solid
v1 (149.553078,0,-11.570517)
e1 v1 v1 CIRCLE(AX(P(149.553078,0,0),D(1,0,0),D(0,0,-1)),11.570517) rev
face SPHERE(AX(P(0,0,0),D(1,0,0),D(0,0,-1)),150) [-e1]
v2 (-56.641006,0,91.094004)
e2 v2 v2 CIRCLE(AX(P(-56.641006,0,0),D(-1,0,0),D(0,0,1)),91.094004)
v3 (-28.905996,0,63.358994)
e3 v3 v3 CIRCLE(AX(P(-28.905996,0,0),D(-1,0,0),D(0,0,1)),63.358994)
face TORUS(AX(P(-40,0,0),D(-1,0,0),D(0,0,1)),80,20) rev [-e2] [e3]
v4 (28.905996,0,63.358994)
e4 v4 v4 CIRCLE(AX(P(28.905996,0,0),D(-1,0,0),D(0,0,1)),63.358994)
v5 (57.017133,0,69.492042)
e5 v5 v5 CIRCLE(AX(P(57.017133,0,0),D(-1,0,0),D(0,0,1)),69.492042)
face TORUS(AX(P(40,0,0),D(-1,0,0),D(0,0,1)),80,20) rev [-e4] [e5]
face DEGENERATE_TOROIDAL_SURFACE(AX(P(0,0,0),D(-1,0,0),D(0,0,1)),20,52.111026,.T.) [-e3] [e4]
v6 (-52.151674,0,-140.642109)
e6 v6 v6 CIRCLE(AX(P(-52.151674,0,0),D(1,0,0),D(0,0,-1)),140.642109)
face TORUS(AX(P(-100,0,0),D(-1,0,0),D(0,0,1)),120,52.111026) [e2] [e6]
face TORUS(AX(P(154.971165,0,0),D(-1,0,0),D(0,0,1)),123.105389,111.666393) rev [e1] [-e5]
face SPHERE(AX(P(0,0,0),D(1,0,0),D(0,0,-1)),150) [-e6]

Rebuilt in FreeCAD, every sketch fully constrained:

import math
import FreeCAD as App
import Part
import Sketcher

V = App.Vector

doc = App.newDocument("Part")
body = doc.addObject("PartDesign::Body", "Body")

sketch1 = body.newObject("Sketcher::SketchObject", "Sketch")
sketch1.AttachmentSupport = (doc.getObject("XY_Plane"), [""])
sketch1.MapMode = "FlatFace"
sketch1.addGeometry([
    Part.LineSegment(V(0, 150, 0), V(0, -150, 0)),
    Part.ArcOfCircle(Part.Circle(V(0, 0, 0), V(0, 0, 1), 150), math.radians(-90), math.radians(90)),
], False)
sketch1.addConstraint([
    Sketcher.Constraint("Coincident", 0, 1, 1, 2),
    Sketcher.Constraint("Coincident", 1, 1, 0, 2),
    Sketcher.Constraint("Vertical", 0),
    Sketcher.Constraint("Coincident", 1, 3, -1, 1),
    Sketcher.Constraint("PointOnObject", 0, 1, -2),
    Sketcher.Constraint("Radius", 1, 150.0),
])
revolution = body.newObject("PartDesign::Revolution", "Revolution")
revolution.Profile = sketch1
revolution.ReferenceAxis = (sketch1, ["V_Axis"])
revolution.Angle = 360

sketch2 = body.newObject("Sketcher::SketchObject", "Sketch001")
sketch2.AttachmentSupport = (doc.getObject("XY_Plane"), [""])
sketch2.MapMode = "FlatFace"
sketch2.addGeometry([
    Part.ArcOfCircle(Part.Circle(V(100, 120, 0), V(0, 0, 1), 52.111026), math.radians(146.309932), math.radians(213.690068)),
    Part.ArcOfCircle(Part.Circle(V(40, 160, 0), V(0, 0, 1), 20), math.radians(-33.690068), math.radians(123.690068)),
    Part.ArcOfCircle(Part.Circle(V(0, 220, 0), V(0, 0, 1), 52.111026), math.radians(-123.690068), math.radians(-56.309932)),
    Part.ArcOfCircle(Part.Circle(V(-40, 160, 0), V(0, 0, 1), 20), math.radians(56.309932), math.radians(213.690068)),
    Part.ArcOfCircle(Part.Circle(V(-100, 120, 0), V(0, 0, 1), 52.111026), math.radians(-33.690068), math.radians(33.690068)),
    Part.ArcOfCircle(Part.Circle(V(-40, 80, 0), V(0, 0, 1), 20), math.radians(146.309932), math.radians(303.690068)),
    Part.ArcOfCircle(Part.Circle(V(0, 20, 0), V(0, 0, 1), 52.111026), math.radians(56.309932), math.radians(123.690068)),
    Part.ArcOfCircle(Part.Circle(V(40, 80, 0), V(0, 0, 1), 20), math.radians(-123.690068), math.radians(33.690068)),
], False)
sketch2.addConstraint([
    Sketcher.Constraint("Tangent", 0, 1, 1, 1),
    Sketcher.Constraint("Tangent", 1, 2, 2, 2),
    Sketcher.Constraint("Tangent", 2, 1, 3, 1),
    Sketcher.Constraint("Tangent", 3, 2, 4, 2),
    Sketcher.Constraint("Tangent", 4, 1, 5, 1),
    Sketcher.Constraint("Tangent", 5, 2, 6, 2),
    Sketcher.Constraint("Tangent", 6, 1, 7, 1),
    Sketcher.Constraint("Tangent", 7, 2, 0, 2),
    Sketcher.Constraint("Equal", 0, 2),
    Sketcher.Constraint("Equal", 1, 3),
    Sketcher.Constraint("Equal", 2, 4),
    Sketcher.Constraint("Equal", 3, 5),
    Sketcher.Constraint("Equal", 4, 6),
    Sketcher.Constraint("Equal", 5, 7),
    Sketcher.Constraint("Symmetric", 1, 3, 3, 3, -2),
    Sketcher.Constraint("Symmetric", 5, 3, 7, 3, -2),
    Sketcher.Constraint("Vertical", 3, 3, 5, 3),
    Sketcher.Constraint("Radius", 1, 20.0),
    Sketcher.Constraint("DistanceX", -1, 1, 0, 3, 100.0),
    Sketcher.Constraint("DistanceY", -1, 1, 0, 3, 120.0),
    Sketcher.Constraint("DistanceX", -1, 1, 1, 3, 40.0),
    Sketcher.Constraint("DistanceY", -1, 1, 1, 3, 160.0),
])
groove = body.newObject("PartDesign::Groove", "Groove")
groove.Profile = sketch2
groove.ReferenceAxis = (sketch2, ["H_Axis"])
groove.Angle = 360

sketch3 = body.newObject("Sketcher::SketchObject", "Sketch002")
sketch3.AttachmentSupport = (doc.getObject("XY_Plane"), [""])
sketch3.MapMode = "FlatFace"
sketch3.addGeometry(Part.Circle(V(154.971165, 123.105389, 0), V(0, 0, 1), 111.666393), False)
sketch3.addConstraint([
    Sketcher.Constraint("Diameter", 0, 223.332785),
    Sketcher.Constraint("DistanceY", -1, 1, 0, 3, 123.105389),
    Sketcher.Constraint("DistanceX", -1, 1, 0, 3, 154.971165),
])
groove2 = body.newObject("PartDesign::Groove", "Groove001")
groove2.Profile = sketch3
groove2.ReferenceAxis = (sketch3, ["H_Axis"])
groove2.Angle = 360

doc.recompute()
